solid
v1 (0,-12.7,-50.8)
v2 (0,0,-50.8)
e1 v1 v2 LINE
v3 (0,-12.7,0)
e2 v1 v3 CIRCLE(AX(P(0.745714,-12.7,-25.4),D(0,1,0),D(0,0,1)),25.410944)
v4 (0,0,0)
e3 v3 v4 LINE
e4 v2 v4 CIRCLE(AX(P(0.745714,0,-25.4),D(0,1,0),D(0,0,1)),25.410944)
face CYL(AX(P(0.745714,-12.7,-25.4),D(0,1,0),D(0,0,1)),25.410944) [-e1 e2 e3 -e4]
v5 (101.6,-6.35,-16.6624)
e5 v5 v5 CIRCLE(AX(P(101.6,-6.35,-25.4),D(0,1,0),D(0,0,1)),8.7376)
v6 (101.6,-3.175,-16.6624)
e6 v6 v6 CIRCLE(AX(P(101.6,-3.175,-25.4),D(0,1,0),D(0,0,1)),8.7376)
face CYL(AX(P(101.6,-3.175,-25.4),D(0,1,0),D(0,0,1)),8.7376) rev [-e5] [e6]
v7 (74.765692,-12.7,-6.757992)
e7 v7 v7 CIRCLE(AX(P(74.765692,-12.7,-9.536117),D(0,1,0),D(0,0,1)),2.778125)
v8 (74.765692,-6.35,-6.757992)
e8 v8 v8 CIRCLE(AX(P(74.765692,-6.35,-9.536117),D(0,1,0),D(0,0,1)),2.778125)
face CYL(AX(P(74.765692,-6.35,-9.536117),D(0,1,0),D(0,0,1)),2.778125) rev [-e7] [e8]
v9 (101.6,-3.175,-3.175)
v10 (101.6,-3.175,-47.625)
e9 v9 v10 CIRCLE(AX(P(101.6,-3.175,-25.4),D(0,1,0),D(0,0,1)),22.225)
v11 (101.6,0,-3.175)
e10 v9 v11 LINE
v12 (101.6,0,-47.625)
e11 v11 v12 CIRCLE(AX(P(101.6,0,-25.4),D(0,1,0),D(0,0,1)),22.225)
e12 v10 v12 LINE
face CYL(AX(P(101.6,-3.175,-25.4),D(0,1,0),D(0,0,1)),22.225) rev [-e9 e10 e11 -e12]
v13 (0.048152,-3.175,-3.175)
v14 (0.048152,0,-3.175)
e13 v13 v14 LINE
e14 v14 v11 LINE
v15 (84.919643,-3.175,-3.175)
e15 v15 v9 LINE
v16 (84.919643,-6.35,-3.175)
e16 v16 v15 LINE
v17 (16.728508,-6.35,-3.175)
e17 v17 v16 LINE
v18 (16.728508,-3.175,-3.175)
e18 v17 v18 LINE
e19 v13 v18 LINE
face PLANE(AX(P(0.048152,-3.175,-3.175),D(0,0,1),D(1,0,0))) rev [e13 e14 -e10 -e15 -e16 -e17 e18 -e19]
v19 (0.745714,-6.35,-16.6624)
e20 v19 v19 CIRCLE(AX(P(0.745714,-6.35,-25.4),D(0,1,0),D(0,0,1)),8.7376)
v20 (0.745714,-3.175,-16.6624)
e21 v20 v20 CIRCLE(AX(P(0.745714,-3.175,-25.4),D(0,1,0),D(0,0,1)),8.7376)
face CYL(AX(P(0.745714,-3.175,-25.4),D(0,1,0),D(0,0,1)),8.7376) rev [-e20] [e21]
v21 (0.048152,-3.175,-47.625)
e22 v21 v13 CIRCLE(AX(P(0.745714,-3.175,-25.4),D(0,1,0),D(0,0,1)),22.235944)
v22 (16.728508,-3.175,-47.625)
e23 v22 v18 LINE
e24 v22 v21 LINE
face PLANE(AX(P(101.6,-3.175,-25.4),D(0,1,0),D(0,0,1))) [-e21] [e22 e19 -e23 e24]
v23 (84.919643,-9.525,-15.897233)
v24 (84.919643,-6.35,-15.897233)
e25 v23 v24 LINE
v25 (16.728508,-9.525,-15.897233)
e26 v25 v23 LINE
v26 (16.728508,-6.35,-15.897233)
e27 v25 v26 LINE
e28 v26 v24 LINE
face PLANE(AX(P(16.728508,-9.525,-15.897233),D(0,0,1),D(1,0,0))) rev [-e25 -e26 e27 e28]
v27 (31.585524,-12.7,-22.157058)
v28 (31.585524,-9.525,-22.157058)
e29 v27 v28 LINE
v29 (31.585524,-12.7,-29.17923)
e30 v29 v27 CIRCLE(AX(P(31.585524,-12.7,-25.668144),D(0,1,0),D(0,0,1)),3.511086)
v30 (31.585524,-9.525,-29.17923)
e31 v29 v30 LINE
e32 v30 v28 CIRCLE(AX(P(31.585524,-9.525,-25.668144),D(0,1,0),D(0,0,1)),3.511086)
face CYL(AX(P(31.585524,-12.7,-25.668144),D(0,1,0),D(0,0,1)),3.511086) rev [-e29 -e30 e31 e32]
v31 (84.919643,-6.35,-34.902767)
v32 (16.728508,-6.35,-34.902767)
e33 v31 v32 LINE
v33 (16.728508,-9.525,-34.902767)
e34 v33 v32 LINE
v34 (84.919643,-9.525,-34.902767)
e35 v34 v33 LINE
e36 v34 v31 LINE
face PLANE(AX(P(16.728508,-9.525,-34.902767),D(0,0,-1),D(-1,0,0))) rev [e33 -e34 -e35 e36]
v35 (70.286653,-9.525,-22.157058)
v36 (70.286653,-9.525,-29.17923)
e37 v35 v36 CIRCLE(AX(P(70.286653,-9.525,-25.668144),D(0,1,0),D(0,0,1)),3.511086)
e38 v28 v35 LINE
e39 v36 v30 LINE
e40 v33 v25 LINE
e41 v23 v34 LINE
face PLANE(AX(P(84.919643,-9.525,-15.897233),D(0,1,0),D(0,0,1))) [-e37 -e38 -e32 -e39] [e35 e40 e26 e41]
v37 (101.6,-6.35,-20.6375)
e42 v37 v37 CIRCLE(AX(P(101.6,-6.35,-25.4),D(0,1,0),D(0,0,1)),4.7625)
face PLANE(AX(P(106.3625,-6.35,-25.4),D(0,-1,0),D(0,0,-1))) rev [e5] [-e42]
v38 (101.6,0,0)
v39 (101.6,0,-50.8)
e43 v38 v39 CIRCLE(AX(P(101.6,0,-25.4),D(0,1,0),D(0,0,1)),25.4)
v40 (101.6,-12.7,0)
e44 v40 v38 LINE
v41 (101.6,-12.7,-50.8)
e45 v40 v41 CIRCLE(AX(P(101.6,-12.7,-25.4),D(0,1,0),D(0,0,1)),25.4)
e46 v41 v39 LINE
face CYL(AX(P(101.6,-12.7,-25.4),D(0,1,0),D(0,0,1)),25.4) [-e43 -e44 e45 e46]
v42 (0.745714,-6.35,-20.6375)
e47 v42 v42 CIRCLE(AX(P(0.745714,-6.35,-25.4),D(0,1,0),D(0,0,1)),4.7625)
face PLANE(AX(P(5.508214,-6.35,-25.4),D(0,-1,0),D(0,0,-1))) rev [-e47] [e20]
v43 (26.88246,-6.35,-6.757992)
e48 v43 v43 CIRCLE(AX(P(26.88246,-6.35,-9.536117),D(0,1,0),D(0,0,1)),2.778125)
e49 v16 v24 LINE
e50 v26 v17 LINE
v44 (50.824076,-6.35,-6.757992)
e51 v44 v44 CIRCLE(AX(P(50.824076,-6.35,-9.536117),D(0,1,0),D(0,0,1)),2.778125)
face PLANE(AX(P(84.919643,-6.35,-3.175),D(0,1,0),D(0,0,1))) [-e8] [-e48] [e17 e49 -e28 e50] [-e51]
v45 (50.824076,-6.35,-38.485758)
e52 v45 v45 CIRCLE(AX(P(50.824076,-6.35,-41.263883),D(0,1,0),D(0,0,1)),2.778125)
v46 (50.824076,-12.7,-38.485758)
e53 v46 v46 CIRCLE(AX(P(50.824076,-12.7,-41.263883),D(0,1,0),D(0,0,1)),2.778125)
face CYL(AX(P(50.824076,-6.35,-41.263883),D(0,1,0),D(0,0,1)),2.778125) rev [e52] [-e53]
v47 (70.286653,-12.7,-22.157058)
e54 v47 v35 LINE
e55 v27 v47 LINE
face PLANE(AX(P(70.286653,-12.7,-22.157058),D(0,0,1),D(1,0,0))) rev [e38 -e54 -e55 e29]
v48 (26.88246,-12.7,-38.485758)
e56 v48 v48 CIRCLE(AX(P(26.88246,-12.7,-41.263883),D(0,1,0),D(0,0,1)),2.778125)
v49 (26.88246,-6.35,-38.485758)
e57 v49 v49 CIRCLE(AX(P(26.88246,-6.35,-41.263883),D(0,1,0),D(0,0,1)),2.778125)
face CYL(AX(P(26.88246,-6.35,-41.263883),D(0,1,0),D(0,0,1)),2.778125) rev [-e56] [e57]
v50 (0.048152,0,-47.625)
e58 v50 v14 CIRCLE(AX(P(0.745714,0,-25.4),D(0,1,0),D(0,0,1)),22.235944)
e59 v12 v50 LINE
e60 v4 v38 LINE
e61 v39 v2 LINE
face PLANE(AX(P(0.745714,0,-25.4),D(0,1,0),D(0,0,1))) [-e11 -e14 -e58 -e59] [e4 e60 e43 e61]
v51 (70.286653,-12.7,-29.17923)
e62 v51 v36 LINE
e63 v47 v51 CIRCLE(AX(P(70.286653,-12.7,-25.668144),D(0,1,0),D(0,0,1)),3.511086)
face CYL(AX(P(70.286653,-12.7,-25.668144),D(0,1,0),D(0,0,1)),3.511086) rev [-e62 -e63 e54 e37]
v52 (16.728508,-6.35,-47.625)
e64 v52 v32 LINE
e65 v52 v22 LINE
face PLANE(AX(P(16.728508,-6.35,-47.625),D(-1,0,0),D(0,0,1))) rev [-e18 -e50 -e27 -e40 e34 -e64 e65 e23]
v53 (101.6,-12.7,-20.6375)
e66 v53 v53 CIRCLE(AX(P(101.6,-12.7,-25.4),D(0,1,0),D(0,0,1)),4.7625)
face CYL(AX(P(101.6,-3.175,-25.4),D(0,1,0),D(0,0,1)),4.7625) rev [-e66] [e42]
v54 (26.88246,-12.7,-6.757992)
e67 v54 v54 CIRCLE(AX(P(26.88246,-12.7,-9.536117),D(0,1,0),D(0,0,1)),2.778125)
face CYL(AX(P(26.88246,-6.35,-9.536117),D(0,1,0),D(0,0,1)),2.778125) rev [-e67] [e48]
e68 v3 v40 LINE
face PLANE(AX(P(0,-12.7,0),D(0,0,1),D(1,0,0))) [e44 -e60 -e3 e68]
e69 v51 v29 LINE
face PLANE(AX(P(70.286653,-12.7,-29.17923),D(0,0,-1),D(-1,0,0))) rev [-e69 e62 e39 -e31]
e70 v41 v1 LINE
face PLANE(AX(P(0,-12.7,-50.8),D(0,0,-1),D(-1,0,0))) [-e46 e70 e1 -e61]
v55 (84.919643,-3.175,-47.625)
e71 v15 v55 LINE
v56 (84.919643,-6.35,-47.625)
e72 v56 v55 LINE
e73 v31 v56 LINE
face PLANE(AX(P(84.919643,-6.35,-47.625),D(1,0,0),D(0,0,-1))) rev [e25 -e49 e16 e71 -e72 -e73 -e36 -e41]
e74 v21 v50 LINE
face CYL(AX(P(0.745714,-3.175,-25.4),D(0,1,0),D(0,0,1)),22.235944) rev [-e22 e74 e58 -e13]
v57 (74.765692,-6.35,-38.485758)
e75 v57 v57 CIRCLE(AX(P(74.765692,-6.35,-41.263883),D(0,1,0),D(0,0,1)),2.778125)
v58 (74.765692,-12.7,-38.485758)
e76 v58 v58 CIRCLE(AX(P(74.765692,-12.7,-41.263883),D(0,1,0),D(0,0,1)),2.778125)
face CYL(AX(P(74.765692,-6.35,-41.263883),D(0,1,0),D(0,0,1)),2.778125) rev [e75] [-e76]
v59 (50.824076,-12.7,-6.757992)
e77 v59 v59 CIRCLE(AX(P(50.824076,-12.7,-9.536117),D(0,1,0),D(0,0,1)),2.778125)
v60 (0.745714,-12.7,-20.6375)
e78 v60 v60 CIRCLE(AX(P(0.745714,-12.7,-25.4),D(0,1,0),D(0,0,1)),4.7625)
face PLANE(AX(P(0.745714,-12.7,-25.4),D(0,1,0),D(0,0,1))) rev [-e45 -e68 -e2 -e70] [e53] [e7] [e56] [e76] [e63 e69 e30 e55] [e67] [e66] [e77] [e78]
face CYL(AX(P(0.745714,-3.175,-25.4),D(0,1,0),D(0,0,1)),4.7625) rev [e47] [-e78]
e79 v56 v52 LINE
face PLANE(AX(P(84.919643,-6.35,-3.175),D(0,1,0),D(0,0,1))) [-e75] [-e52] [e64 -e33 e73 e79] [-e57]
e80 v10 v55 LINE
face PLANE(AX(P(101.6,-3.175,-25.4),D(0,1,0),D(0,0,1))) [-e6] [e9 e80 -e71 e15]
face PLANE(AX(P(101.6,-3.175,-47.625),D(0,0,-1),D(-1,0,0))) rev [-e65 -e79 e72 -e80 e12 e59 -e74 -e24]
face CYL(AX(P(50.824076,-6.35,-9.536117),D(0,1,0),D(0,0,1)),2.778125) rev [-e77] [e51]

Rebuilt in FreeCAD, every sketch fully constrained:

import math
import FreeCAD as App
import Part
import Sketcher

V = App.Vector
Q = App.Units.Quantity


def add_polygon(sketch, points):
    """Adds a closed chain of lines whose ends are joined by coincident constraints."""
    first, n = sketch.GeometryCount, len(points)
    for a, b in zip(points, points[1:] + points[:1]):
        sketch.addGeometry(Part.LineSegment(App.Vector(*a, 0), App.Vector(*b, 0)), False)
    for i in range(n):
        sketch.addConstraint(Sketcher.Constraint("Coincident", first + i, 2, first + (i + 1) % n, 1))

doc = App.newDocument("Part")
params = doc.addObject("Spreadsheet::Sheet", "Params")
for row, (alias, value) in enumerate([
    ("sketch1_radius", "1 in"),
    ("sketch1_width", "4 in"),
    ("pad1_length", "0.5 in"),
    ("sketch2_radius", "0.875 in"),
    ("pocket1_length", "0.125 in"),
    ("sketch3_height", "1.75 in"),
    ("pocket2_length", "0.125 in"),
    ("pocket3_length", "0.125 in"),
    ("sketch6_diameter", "0.375 in"),
    ("hole_diameter", "0.375 in"),
    ("hole_cbore_diameter", "0.688 in"),
    ("hole_cbore_depth", "0.125 in"),
    ("sketch7_diameter", "0.21875 in"),
    ("hole2_diameter", "0.21875 in"),
    ("hole2_depth", "1 in"),
    ("sketch8_diameter", "0.21875 in"),
    ("hole3_diameter", "0.21875 in"),
    ("hole3_depth", "1 in"),
], start=1):
    params.set(f"A{row}", alias)
    params.set(f"B{row}", "=" + value)
    params.setAlias(f"B{row}", alias)

body = doc.addObject("PartDesign::Body", "Body")

sketch1 = body.newObject("Sketcher::SketchObject", "Sketch")
sketch1.AttachmentSupport = (doc.getObject("XZ_Plane"), [""])
sketch1.MapMode = "FlatFace"
sketch1.addGeometry(Part.LineSegment(V(0, 0, 0), V(102, 0, 0)), False)
sketch1.addGeometry(Part.ArcOfCircle(Part.Circle(V(102, -25, 0), V(0, 0, 1), 25), math.radians(-90), math.radians(90)), False)
sketch1.addGeometry(Part.LineSegment(V(102, -51, 0), V(0, -51, 0)), False)
sketch1.addGeometry(Part.ArcOfCircle(Part.Circle(V(1, -25, 0), V(0, 0, 1), 25), math.radians(92), math.radians(268)), False)
sketch1.addConstraint(Sketcher.Constraint("Tangent", 0, 2, 1, 2))
sketch1.addConstraint(Sketcher.Constraint("Tangent", 1, 1, 2, 1))
sketch1.addConstraint(Sketcher.Constraint("Coincident", 2, 2, 3, 2))
sketch1.addConstraint(Sketcher.Constraint("Coincident", 3, 1, 0, 1))
sketch1.addConstraint(Sketcher.Constraint("Horizontal", 0))
sketch1.addConstraint(Sketcher.Constraint("Horizontal", 2))
sketch1.addConstraint(Sketcher.Constraint("Coincident", 3, 1, -1, 1))
sketch1.addConstraint(Sketcher.Constraint("PointOnObject", 2, 2, -2))
sketch1.addConstraint(Sketcher.Constraint("Radius", 1, Q("1 in")))
sketch1.addConstraint(Sketcher.Constraint("DistanceX", 0, 1, 0, 2, Q("4 in")))
sketch1.addConstraint(Sketcher.Constraint("Radius", 3, 25.410944))
sketch1.setExpression("Constraints[8]", "Params.sketch1_radius")
sketch1.setExpression("Constraints[9]", "Params.sketch1_width")
pad1 = body.newObject("PartDesign::Pad", "Pad")
pad1.Profile = sketch1
pad1.setExpression("Length", "Params.pad1_length")

sketch2 = body.newObject("Sketcher::SketchObject", "Sketch001")
sketch2.AttachmentSupport = (doc.getObject("XZ_Plane"), [""])
sketch2.MapMode = "FlatFace"
sketch2.addGeometry(Part.LineSegment(V(102, -48, 0), V(0, -48, 0)), False)
sketch2.addGeometry(Part.ArcOfCircle(Part.Circle(V(1, -25, 0), V(0, 0, 1), 22), math.radians(92), math.radians(268)), False)
sketch2.addGeometry(Part.LineSegment(V(0, -3, 0), V(102, -3, 0)), False)
sketch2.addGeometry(Part.ArcOfCircle(Part.Circle(V(102, -25, 0), V(0, 0, 1), 22), math.radians(-90), math.radians(90)), False)
sketch2.addConstraint(Sketcher.Constraint("Coincident", 0, 2, 1, 2))
sketch2.addConstraint(Sketcher.Constraint("Coincident", 1, 1, 2, 1))
sketch2.addConstraint(Sketcher.Constraint("Tangent", 2, 2, 3, 2))
sketch2.addConstraint(Sketcher.Constraint("Tangent", 3, 1, 0, 1))
sketch2.addConstraint(Sketcher.Constraint("Horizontal", 0))
sketch2.addConstraint(Sketcher.Constraint("Horizontal", 2))
sketch2.addConstraint(Sketcher.Constraint("Horizontal", 1, 3, 3, 3))
sketch2.addConstraint(Sketcher.Constraint("DistanceY", 1, 3, -1, 1, Q("1 in")))
sketch2.addConstraint(Sketcher.Constraint("DistanceX", -1, 1, 3, 3, Q("4 in")))
sketch2.addConstraint(Sketcher.Constraint("Radius", 3, Q("0.875 in")))
sketch2.addConstraint(Sketcher.Constraint("Radius", 1, 22.235944))
sketch2.addConstraint(Sketcher.Constraint("DistanceX", 0, 2, 0, 1, 101.551848))
sketch2.setExpression("Constraints[9]", "Params.sketch2_radius")
pocket1 = body.newObject("PartDesign::Pocket", "Pocket")
pocket1.Profile = sketch2
pocket1.setExpression("Length", "Params.pocket1_length")
pocket1.Reversed = True

sketch3 = body.newObject("Sketcher::SketchObject", "Sketch002")
sketch3.AttachmentSupport = (doc.getObject("XZ_Plane"), [""])
sketch3.MapMode = "FlatFace"
sketch3.AttachmentOffset = App.Placement(V(0, 0, 0.125 * 25.4), App.Rotation())
add_polygon(sketch3, [(85, -3), (85, -48), (17, -48), (17, -3)])
sketch3.addConstraint(Sketcher.Constraint("Vertical", 0))
sketch3.addConstraint(Sketcher.Constraint("Horizontal", 1))
sketch3.addConstraint(Sketcher.Constraint("Vertical", 2))
sketch3.addConstraint(Sketcher.Constraint("Horizontal", 3))
sketch3.addConstraint(Sketcher.Constraint("DistanceY", 0, 2, 0, 1, Q("1.75 in")))
sketch3.addConstraint(Sketcher.Constraint("DistanceY", 0, 2, -1, 1, Q("1.875 in")))
sketch3.addConstraint(Sketcher.Constraint("DistanceX", 1, 2, 1, 1, 68.191135))
sketch3.addConstraint(Sketcher.Constraint("DistanceX", -1, 1, 1, 2, 16.728508))
sketch3.setExpression("Constraints[8]", "Params.sketch3_height")
pocket2 = body.newObject("PartDesign::Pocket", "Pocket001")
pocket2.Profile = sketch3
pocket2.setExpression("Length", "Params.pocket2_length")
pocket2.Reversed = True

sketch4 = body.newObject("Sketcher::SketchObject", "Sketch003")
sketch4.AttachmentSupport = (doc.getObject("XZ_Plane"), [""])
sketch4.MapMode = "FlatFace"
sketch4.AttachmentOffset = App.Placement(V(0, 0, 0.25 * 25.4), App.Rotation())
add_polygon(sketch4, [(85, -16), (85, -35), (17, -35), (17, -16)])
sketch4.addConstraint(Sketcher.Constraint("Vertical", 0))
sketch4.addConstraint(Sketcher.Constraint("Horizontal", 1))
sketch4.addConstraint(Sketcher.Constraint("Vertical", 2))
sketch4.addConstraint(Sketcher.Constraint("Horizontal", 3))
sketch4.addConstraint(Sketcher.Constraint("DistanceX", 1, 2, 1, 1, 68.191135))
sketch4.addConstraint(Sketcher.Constraint("DistanceY", 0, 2, 0, 1, 19.005533))
sketch4.addConstraint(Sketcher.Constraint("DistanceX", -1, 1, 1, 2, 16.728508))
sketch4.addConstraint(Sketcher.Constraint("DistanceY", 0, 2, -1, 1, 34.902767))
pocket3 = body.newObject("PartDesign::Pocket", "Pocket002")
pocket3.Profile = sketch4
pocket3.setExpression("Length", "Params.pocket3_length")
pocket3.Reversed = True

sketch5 = body.newObject("Sketcher::SketchObject", "Sketch004")
sketch5.AttachmentSupport = (doc.getObject("XZ_Plane"), [""])
sketch5.MapMode = "FlatFace"
sketch5.AttachmentOffset = App.Placement(V(0, 0, 0.25 * 25.4), App.Rotation())
sketch5.addGeometry(Part.LineSegment(V(31.6, -22.2, 0), V(70.3, -22.2, 0)), False)
sketch5.addGeometry(Part.ArcOfCircle(Part.Circle(V(70.3, -25.7, 0), V(0, 0, 1), 3.5), math.radians(-90), math.radians(90)), False)
sketch5.addGeometry(Part.LineSegment(V(70.3, -29.2, 0), V(31.6, -29.2, 0)), False)
sketch5.addGeometry(Part.ArcOfCircle(Part.Circle(V(31.6, -25.7, 0), V(0, 0, 1), 3.5), math.radians(90), math.radians(270)), False)
sketch5.addConstraint(Sketcher.Constraint("Tangent", 0, 2, 1, 2))
sketch5.addConstraint(Sketcher.Constraint("Tangent", 1, 1, 2, 1))
sketch5.addConstraint(Sketcher.Constraint("Tangent", 2, 2, 3, 2))
sketch5.addConstraint(Sketcher.Constraint("Tangent", 3, 1, 0, 1))
sketch5.addConstraint(Sketcher.Constraint("Horizontal", 0))
sketch5.addConstraint(Sketcher.Constraint("Horizontal", 2))
sketch5.addConstraint(Sketcher.Constraint("Radius", 1, 3.511086))
sketch5.addConstraint(Sketcher.Constraint("DistanceX", 0, 1, 0, 2, 38.701129))
sketch5.addConstraint(Sketcher.Constraint("DistanceY", 0, 2, -1, 1, 22.157058))
sketch5.addConstraint(Sketcher.Constraint("DistanceX", -1, 1, 1, 3, 70.286653))
pocket4 = body.newObject("PartDesign::Pocket", "Pocket003")
pocket4.Profile = sketch5
pocket4.Type = "ThroughAll"
pocket4.Reversed = True

sketch6 = body.newObject("Sketcher::SketchObject", "Sketch005")
sketch6.AttachmentSupport = (doc.getObject("XZ_Plane"), [""])
sketch6.MapMode = "FlatFace"
sketch6.AttachmentOffset = App.Placement(V(0, 0, 0.125 * 25.4), App.Rotation())
sketch6.addGeometry(Part.Circle(V(0.7, -25.4, 0), V(0, 0, 1), 4.8), False)
sketch6.addGeometry(Part.Circle(V(101.6, -25.4, 0), V(0, 0, 1), 4.8), False)
sketch6.addConstraint(Sketcher.Constraint("Equal", 0, 1))
sketch6.addConstraint(Sketcher.Constraint("Horizontal", 0, 3, 1, 3))
sketch6.addConstraint(Sketcher.Constraint("Diameter", 0, Q("0.375 in")))
sketch6.addConstraint(Sketcher.Constraint("DistanceY", 0, 3, -1, 1, Q("1 in")))
sketch6.addConstraint(Sketcher.Constraint("DistanceX", -1, 1, 1, 3, Q("4 in")))
sketch6.addConstraint(Sketcher.Constraint("DistanceX", -1, 1, 0, 3, 0.745714))
sketch6.setExpression("Constraints[2]", "Params.sketch6_diameter")
doc.recompute()
hole = body.newObject("PartDesign::Hole", "Hole")
hole.Profile = sketch6
hole.ThreadType = "None"
hole.setExpression("Diameter", "Params.hole_diameter")
hole.DepthType = "ThroughAll"
hole.HoleCutType = "Counterbore"
hole.setExpression("HoleCutDiameter", "Params.hole_cbore_diameter")
hole.setExpression("HoleCutDepth", "Params.hole_cbore_depth")
hole.Reversed = True

sketch7 = body.newObject("Sketcher::SketchObject", "Sketch006")
sketch7.AttachmentSupport = (doc.getObject("XZ_Plane"), [""])
sketch7.MapMode = "FlatFace"
sketch7.AttachmentOffset = App.Placement(V(0, 0, 0.25 * 25.4), App.Rotation())
sketch7.addGeometry(Part.Circle(V(26.9, -9.5, 0), V(0, 0, 1), 2.8), False)
sketch7.addConstraint(Sketcher.Constraint("Diameter", 0, Q("0.21875 in")))
sketch7.addConstraint(Sketcher.Constraint("DistanceX", -1, 1, 0, 3, 26.88246))
sketch7.addConstraint(Sketcher.Constraint("DistanceY", 0, 3, -1, 1, 9.536117))
sketch7.setExpression("Constraints[0]", "Params.sketch7_diameter")
doc.recompute()
hole2 = body.newObject("PartDesign::Hole", "Hole001")
hole2.Profile = sketch7
hole2.ThreadType = "None"
hole2.setExpression("Diameter", "Params.hole2_diameter")
hole2.DepthType = "Dimension"
hole2.setExpression("Depth", "Params.hole2_depth")
hole2.DrillPoint = "Angled"
hole2.DrillPointAngle = 118
hole2.Reversed = True

sketch8 = body.newObject("Sketcher::SketchObject", "Sketch007")
sketch8.AttachmentSupport = (doc.getObject("XZ_Plane"), [""])
sketch8.MapMode = "FlatFace"
sketch8.AttachmentOffset = App.Placement(V(0, 0, 0.25 * 25.4), App.Rotation())
sketch8.addGeometry(Part.Circle(V(50.8, -9.5, 0), V(0, 0, 1), 2.8), False)
sketch8.addGeometry(Part.Circle(V(74.8, -9.5, 0), V(0, 0, 1), 2.8), False)
sketch8.addGeometry(Part.Circle(V(26.9, -41.3, 0), V(0, 0, 1), 2.8), False)
sketch8.addGeometry(Part.Circle(V(50.8, -41.3, 0), V(0, 0, 1), 2.8), False)
sketch8.addGeometry(Part.Circle(V(74.8, -41.3, 0), V(0, 0, 1), 2.8), False)
sketch8.addConstraint(Sketcher.Constraint("Equal", 0, 1))
sketch8.addConstraint(Sketcher.Constraint("Equal", 1, 2))
sketch8.addConstraint(Sketcher.Constraint("Equal", 2, 3))
sketch8.addConstraint(Sketcher.Constraint("Equal", 3, 4))
sketch8.addConstraint(Sketcher.Constraint("Horizontal", 0, 3, 1, 3))
sketch8.addConstraint(Sketcher.Constraint("Horizontal", 2, 3, 3, 3))
sketch8.addConstraint(Sketcher.Constraint("Horizontal", 3, 3, 4, 3))
sketch8.addConstraint(Sketcher.Constraint("Vertical", 0, 3, 3, 3))
sketch8.addConstraint(Sketcher.Constraint("Vertical", 1, 3, 4, 3))
sketch8.addConstraint(Sketcher.Constraint("Diameter", 0, Q("0.21875 in")))
sketch8.addConstraint(Sketcher.Constraint("DistanceX", -1, 1, 1, 3, 74.765692))
sketch8.addConstraint(Sketcher.Constraint("DistanceX", -1, 1, 2, 3, 26.88246))
sketch8.addConstraint(Sketcher.Constraint("DistanceX", -1, 1, 0, 3, 50.824076))
sketch8.addConstraint(Sketcher.Constraint("DistanceY", 0, 3, -1, 1, 9.536117))
sketch8.addConstraint(Sketcher.Constraint("DistanceY", 2, 3, -1, 1, 41.263883))
sketch8.setExpression("Constraints[9]", "Params.sketch8_diameter")
doc.recompute()
hole3 = body.newObject("PartDesign::Hole", "Hole002")
hole3.Profile = sketch8
hole3.ThreadType = "None"
hole3.setExpression("Diameter", "Params.hole3_diameter")
hole3.DepthType = "Dimension"
hole3.setExpression("Depth", "Params.hole3_depth")
hole3.DrillPoint = "Angled"
hole3.DrillPointAngle = 118
hole3.Reversed = True

doc.recompute()
